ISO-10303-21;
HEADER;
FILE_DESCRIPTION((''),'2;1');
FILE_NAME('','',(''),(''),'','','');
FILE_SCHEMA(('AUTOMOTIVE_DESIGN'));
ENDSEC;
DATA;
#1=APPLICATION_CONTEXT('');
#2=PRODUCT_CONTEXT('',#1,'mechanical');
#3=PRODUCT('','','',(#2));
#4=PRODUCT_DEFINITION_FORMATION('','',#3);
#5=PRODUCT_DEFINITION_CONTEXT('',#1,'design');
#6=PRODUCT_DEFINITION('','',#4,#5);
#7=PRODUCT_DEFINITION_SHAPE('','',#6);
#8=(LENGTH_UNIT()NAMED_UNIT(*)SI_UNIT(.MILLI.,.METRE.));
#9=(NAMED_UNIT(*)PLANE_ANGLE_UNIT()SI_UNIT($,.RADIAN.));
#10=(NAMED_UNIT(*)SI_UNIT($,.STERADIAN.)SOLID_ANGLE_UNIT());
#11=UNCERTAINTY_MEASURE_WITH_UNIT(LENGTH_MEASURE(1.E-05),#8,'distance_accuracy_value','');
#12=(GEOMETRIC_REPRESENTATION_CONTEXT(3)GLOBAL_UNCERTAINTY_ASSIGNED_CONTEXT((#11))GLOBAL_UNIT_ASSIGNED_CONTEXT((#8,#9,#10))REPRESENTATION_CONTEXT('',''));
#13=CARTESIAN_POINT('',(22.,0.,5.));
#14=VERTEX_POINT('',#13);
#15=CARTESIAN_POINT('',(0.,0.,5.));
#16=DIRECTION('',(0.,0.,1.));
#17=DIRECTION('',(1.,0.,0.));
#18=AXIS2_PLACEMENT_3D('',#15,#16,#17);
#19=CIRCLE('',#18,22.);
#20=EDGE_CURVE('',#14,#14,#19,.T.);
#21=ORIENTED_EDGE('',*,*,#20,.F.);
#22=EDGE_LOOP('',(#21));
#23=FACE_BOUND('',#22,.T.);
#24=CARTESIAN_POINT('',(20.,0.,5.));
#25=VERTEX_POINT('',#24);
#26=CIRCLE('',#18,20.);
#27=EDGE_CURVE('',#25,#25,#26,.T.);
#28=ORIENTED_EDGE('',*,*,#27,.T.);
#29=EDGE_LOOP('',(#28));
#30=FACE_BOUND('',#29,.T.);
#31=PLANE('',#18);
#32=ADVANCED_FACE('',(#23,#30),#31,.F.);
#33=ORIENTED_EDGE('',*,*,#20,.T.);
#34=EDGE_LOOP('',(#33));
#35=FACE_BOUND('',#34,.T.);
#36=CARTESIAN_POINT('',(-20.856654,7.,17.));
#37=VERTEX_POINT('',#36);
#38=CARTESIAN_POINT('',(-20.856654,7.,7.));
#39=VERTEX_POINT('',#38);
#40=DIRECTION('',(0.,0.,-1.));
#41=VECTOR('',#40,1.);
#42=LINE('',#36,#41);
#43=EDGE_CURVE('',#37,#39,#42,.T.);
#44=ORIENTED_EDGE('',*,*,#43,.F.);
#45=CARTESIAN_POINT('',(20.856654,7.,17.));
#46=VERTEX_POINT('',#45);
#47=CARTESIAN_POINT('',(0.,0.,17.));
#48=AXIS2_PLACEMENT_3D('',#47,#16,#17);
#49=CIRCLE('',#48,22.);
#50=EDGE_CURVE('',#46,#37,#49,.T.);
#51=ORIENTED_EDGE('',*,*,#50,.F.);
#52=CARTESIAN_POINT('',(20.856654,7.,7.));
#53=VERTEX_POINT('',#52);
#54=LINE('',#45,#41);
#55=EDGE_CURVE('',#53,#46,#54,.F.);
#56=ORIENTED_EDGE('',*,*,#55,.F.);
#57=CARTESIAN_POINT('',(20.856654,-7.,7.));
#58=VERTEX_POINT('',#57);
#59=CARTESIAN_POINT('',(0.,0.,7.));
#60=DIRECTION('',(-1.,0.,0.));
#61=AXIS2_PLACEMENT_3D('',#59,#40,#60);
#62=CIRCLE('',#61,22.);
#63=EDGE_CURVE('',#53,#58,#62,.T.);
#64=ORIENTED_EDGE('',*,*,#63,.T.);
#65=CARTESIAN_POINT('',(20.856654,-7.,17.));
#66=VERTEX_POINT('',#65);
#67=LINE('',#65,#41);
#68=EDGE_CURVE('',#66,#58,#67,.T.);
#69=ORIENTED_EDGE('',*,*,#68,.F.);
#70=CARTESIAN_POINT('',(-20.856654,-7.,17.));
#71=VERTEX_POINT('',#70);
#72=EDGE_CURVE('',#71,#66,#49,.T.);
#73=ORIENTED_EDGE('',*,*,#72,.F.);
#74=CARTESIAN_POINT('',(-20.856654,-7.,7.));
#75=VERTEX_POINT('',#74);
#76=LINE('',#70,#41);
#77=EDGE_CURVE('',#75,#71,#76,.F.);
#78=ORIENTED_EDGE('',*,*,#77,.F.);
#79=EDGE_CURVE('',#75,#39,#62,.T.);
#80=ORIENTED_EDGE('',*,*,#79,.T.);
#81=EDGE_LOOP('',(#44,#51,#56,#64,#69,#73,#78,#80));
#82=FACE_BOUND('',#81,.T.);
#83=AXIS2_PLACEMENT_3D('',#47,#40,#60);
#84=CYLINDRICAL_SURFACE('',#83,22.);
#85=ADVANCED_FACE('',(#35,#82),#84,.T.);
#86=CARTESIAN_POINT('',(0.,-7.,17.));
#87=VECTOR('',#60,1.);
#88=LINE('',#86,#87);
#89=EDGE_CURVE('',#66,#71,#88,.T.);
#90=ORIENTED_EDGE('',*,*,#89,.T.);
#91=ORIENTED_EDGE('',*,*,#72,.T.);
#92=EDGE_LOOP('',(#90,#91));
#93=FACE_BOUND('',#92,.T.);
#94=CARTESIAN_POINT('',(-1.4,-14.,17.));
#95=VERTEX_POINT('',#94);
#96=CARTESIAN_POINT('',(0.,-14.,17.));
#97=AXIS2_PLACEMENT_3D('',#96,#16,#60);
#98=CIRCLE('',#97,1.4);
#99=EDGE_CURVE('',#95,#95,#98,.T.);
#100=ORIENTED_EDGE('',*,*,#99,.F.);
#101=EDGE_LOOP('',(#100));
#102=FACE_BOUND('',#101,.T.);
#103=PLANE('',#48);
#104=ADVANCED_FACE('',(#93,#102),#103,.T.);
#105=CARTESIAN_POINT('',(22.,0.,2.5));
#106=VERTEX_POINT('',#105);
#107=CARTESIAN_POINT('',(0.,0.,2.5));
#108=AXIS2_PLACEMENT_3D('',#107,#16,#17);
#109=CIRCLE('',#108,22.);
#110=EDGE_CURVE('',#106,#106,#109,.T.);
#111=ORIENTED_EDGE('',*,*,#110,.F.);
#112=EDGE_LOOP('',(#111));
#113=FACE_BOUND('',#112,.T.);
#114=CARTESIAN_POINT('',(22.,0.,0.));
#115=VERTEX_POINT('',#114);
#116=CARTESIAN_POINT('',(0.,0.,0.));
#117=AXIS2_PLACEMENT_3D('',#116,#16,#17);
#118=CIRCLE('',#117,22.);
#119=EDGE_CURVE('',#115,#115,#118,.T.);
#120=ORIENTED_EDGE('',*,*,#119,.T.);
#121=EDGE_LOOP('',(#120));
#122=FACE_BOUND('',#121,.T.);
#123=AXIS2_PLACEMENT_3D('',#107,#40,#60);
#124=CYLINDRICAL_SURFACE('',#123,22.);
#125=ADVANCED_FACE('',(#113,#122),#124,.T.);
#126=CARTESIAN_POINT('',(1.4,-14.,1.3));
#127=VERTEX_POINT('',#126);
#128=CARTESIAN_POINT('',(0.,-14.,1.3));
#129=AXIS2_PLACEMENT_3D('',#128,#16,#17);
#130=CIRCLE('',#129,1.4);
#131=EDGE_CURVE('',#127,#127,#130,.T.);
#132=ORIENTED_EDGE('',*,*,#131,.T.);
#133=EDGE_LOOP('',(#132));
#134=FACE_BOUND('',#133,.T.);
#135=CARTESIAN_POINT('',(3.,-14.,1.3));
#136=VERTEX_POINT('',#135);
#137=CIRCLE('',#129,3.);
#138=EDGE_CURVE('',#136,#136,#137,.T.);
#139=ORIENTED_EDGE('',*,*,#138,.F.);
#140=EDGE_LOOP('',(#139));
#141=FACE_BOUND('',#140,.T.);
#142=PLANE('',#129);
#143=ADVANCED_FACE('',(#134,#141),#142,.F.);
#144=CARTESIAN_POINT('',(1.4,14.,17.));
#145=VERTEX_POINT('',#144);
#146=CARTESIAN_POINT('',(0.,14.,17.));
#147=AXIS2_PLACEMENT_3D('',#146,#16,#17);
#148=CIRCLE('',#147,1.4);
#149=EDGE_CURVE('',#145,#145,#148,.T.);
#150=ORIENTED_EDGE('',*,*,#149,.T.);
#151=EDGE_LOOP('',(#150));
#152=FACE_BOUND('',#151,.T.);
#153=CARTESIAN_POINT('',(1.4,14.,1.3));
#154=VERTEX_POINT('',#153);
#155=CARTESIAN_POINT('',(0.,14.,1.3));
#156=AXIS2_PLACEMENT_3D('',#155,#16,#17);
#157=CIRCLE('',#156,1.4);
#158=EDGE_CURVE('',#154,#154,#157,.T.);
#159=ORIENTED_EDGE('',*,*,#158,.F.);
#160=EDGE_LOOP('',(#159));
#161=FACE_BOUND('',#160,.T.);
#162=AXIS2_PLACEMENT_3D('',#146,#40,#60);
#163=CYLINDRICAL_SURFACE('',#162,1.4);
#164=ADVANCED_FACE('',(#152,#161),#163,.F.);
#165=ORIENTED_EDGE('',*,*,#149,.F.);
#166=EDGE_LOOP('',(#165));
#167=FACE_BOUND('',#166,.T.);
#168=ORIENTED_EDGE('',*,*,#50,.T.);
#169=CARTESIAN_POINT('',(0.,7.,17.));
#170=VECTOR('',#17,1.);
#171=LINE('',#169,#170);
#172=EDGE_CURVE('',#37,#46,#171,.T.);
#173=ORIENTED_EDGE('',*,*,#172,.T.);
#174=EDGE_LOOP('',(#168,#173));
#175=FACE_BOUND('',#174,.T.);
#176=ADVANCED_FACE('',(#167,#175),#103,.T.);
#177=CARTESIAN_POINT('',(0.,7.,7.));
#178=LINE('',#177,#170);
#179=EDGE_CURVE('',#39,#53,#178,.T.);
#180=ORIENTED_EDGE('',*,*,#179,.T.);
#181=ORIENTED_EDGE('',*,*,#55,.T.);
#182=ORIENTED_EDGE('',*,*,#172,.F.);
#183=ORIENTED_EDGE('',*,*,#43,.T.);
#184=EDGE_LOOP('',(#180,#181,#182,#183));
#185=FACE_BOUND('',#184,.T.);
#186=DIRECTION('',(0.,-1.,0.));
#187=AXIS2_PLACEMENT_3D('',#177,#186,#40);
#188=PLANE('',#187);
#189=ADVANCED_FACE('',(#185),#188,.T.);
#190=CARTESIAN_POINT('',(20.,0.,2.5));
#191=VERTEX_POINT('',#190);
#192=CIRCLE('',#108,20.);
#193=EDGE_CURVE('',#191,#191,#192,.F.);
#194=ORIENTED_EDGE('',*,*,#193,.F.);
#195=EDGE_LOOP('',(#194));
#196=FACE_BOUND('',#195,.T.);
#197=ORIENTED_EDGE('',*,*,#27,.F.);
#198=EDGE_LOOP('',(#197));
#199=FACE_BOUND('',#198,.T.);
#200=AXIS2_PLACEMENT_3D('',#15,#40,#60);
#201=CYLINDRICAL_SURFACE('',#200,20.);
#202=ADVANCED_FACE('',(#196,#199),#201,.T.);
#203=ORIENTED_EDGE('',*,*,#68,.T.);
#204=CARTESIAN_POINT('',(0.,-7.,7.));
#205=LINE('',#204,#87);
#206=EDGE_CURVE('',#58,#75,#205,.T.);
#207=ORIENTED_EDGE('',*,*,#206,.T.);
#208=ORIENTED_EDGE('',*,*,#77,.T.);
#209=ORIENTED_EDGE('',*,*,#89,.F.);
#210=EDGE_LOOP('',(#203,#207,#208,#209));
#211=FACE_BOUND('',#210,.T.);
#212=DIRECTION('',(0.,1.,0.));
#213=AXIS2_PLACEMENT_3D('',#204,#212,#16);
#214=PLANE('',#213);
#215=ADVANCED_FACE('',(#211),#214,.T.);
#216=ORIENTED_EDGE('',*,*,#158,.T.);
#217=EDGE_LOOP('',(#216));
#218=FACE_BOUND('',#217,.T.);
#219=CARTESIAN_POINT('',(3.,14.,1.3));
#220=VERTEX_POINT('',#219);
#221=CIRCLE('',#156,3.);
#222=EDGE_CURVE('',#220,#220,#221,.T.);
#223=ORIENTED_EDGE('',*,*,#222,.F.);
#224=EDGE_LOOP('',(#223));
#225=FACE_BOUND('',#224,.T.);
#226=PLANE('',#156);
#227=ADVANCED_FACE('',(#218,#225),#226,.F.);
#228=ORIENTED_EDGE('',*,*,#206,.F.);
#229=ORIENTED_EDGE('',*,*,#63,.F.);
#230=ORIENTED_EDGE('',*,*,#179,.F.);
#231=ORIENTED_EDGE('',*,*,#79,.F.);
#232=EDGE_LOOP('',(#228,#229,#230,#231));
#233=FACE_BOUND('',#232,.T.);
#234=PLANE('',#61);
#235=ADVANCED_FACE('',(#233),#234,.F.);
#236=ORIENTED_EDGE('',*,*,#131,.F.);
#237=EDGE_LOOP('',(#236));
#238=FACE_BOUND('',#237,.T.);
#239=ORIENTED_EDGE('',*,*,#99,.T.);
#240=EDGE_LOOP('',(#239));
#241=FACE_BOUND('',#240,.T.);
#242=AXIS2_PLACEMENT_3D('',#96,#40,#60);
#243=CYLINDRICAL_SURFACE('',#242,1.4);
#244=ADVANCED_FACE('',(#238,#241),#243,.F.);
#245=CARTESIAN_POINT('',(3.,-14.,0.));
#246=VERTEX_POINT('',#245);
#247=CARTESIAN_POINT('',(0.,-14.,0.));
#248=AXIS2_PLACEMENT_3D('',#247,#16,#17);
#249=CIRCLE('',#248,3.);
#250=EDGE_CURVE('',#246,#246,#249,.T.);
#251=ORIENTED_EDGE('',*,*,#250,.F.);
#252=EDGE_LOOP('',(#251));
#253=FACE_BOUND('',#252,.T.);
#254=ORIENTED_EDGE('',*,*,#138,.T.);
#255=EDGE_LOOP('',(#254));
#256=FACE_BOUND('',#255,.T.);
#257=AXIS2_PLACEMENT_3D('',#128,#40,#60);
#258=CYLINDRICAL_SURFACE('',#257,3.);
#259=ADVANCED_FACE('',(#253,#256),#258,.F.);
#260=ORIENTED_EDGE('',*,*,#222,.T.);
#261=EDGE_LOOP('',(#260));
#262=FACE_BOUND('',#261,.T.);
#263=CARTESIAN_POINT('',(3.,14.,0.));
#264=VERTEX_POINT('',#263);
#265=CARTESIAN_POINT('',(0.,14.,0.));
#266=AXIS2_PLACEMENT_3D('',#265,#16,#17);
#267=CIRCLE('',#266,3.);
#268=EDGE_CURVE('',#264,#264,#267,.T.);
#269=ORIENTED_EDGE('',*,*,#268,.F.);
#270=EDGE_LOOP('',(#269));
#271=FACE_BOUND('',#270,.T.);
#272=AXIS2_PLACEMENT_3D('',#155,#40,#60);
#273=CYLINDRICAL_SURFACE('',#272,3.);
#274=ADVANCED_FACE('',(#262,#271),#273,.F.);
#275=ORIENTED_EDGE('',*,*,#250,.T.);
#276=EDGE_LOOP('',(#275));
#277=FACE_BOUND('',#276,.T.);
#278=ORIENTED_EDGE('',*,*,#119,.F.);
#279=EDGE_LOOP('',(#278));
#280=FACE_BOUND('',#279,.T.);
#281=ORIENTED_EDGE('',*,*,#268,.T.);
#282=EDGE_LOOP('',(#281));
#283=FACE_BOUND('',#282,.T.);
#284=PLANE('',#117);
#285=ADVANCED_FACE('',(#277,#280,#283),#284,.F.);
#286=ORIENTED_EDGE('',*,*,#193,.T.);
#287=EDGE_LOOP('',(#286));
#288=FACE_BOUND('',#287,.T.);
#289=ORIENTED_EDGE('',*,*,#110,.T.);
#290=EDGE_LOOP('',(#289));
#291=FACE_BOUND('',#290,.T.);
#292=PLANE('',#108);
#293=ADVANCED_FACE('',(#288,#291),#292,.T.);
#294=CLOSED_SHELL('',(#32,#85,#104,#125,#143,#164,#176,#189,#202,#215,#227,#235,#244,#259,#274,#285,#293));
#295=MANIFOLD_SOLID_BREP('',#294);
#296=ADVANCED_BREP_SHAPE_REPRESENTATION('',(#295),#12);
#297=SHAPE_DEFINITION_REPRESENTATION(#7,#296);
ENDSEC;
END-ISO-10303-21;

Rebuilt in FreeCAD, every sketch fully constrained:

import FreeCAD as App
import Part
import Sketcher

V = App.Vector


def add_polygon(sketch, points):
    """Adds a closed chain of lines whose ends are joined by coincident constraints."""
    first, n = sketch.GeometryCount, len(points)
    for a, b in zip(points, points[1:] + points[:1]):
        sketch.addGeometry(Part.LineSegment(App.Vector(*a, 0), App.Vector(*b, 0)), False)
    for i in range(n):
        sketch.addConstraint(Sketcher.Constraint("Coincident", first + i, 2, first + (i + 1) % n, 1))

doc = App.newDocument("Part")
body = doc.addObject("PartDesign::Body", "Body")

# Sketch on XY plane
sketch1 = body.newObject("Sketcher::SketchObject", "Sketch")
sketch1.AttachmentSupport = (doc.getObject("XY_Plane"), [""])
sketch1.MapMode = "FlatFace"
sketch1.addGeometry(Part.Circle(V(0, 0, 0), V(0, 0, 1), 22), False)
sketch1.addConstraint(Sketcher.Constraint("Coincident", 0, 3, -1, 1))
sketch1.addConstraint(Sketcher.Constraint("Diameter", 0, 44.0))
pad1 = body.newObject("PartDesign::Pad", "Pad")
pad1.Profile = sketch1
pad1.Length = 2.5

# Sketch on XY plane
sketch2 = body.newObject("Sketcher::SketchObject", "Sketch001")
sketch2.AttachmentSupport = (doc.getObject("XY_Plane"), [""])
sketch2.MapMode = "FlatFace"
sketch2.addGeometry(Part.Circle(V(0, 0, 0), V(0, 0, 1), 20), False)
sketch2.addConstraint(Sketcher.Constraint("Coincident", 0, 3, -1, 1))
sketch2.addConstraint(Sketcher.Constraint("Diameter", 0, 40.0))
pad2 = body.newObject("PartDesign::Pad", "Pad001")
pad2.Profile = sketch2
pad2.Length = 5

# Sketch on XY plane
sketch3 = body.newObject("Sketcher::SketchObject", "Sketch002")
sketch3.AttachmentSupport = (doc.getObject("XY_Plane"), [""])
sketch3.MapMode = "FlatFace"
sketch3.AttachmentOffset = App.Placement(V(0, 0, 5), App.Rotation())
sketch3.addGeometry(Part.Circle(V(0, 0, 0), V(0, 0, 1), 22), False)
sketch3.addConstraint(Sketcher.Constraint("Coincident", 0, 3, -1, 1))
sketch3.addConstraint(Sketcher.Constraint("Diameter", 0, 44.0))
pad3 = body.newObject("PartDesign::Pad", "Pad002")
pad3.Profile = sketch3
pad3.Length = 12

# Sketch on XY plane
sketch4 = body.newObject("Sketcher::SketchObject", "Sketch003")
sketch4.AttachmentSupport = (doc.getObject("XY_Plane"), [""])
sketch4.MapMode = "FlatFace"
sketch4.AttachmentOffset = App.Placement(V(0, 0, 17), App.Rotation())
add_polygon(sketch4, [(-29, 7), (-29, -7), (27, -7), (27, 7)])  # lines 0-3
sketch4.addConstraint(Sketcher.Constraint("Vertical", 0))
sketch4.addConstraint(Sketcher.Constraint("Horizontal", 1))
sketch4.addConstraint(Sketcher.Constraint("Vertical", 2))
sketch4.addConstraint(Sketcher.Constraint("Horizontal", 3))
sketch4.addConstraint(Sketcher.Constraint("DistanceY", 0, 2, 0, 1, 14.0))
sketch4.addConstraint(Sketcher.Constraint("DistanceY", 0, 2, -1, 1, 7.0))
sketch4.addConstraint(Sketcher.Constraint("DistanceX", 1, 1, 1, 2, 56.338981))
sketch4.addConstraint(Sketcher.Constraint("DistanceX", 0, 2, -1, 1, 29.437855))
pocket1 = body.newObject("PartDesign::Pocket", "Pocket")
pocket1.Profile = sketch4
pocket1.Length = 10

# Sketch on XY plane
sketch5 = body.newObject("Sketcher::SketchObject", "Sketch004")
sketch5.AttachmentSupport = (doc.getObject("XY_Plane"), [""])
sketch5.MapMode = "FlatFace"
sketch5.addGeometry(Part.Circle(V(0, 14, 0), V(0, 0, 1), 1.4), False)
sketch5.addGeometry(Part.Circle(V(0, -14, 0), V(0, 0, 1), 1.4), False)
sketch5.addConstraint(Sketcher.Constraint("Equal", 0, 1))
sketch5.addConstraint(Sketcher.Constraint("Symmetric", 0, 3, 1, 3, -1, 1))
sketch5.addConstraint(Sketcher.Constraint("PointOnObject", 0, 3, -2))
sketch5.addConstraint(Sketcher.Constraint("Diameter", 0, 2.8))
sketch5.addConstraint(Sketcher.Constraint("DistanceY", -1, 1, 0, 3, 14.0))
pocket2 = body.newObject("PartDesign::Pocket", "Pocket001")
pocket2.Profile = sketch5
pocket2.Type = "ThroughAll"
pocket2.Reversed = True

# Sketch on XY plane
sketch6 = body.newObject("Sketcher::SketchObject", "Sketch005")
sketch6.AttachmentSupport = (doc.getObject("XY_Plane"), [""])
sketch6.MapMode = "FlatFace"
sketch6.addGeometry(Part.Circle(V(0, 14, 0), V(0, 0, 1), 3), False)
sketch6.addGeometry(Part.Circle(V(0, -14, 0), V(0, 0, 1), 3), False)
sketch6.addConstraint(Sketcher.Constraint("Equal", 0, 1))
sketch6.addConstraint(Sketcher.Constraint("Symmetric", 0, 3, 1, 3, -1, 1))
sketch6.addConstraint(Sketcher.Constraint("PointOnObject", 0, 3, -2))
sketch6.addConstraint(Sketcher.Constraint("Diameter", 0, 6.0))
sketch6.addConstraint(Sketcher.Constraint("DistanceY", -1, 1, 0, 3, 14.0))
pocket3 = body.newObject("PartDesign::Pocket", "Pocket002")
pocket3.Profile = sketch6
pocket3.Length = 1.3
pocket3.Reversed = True

doc.recompute()
